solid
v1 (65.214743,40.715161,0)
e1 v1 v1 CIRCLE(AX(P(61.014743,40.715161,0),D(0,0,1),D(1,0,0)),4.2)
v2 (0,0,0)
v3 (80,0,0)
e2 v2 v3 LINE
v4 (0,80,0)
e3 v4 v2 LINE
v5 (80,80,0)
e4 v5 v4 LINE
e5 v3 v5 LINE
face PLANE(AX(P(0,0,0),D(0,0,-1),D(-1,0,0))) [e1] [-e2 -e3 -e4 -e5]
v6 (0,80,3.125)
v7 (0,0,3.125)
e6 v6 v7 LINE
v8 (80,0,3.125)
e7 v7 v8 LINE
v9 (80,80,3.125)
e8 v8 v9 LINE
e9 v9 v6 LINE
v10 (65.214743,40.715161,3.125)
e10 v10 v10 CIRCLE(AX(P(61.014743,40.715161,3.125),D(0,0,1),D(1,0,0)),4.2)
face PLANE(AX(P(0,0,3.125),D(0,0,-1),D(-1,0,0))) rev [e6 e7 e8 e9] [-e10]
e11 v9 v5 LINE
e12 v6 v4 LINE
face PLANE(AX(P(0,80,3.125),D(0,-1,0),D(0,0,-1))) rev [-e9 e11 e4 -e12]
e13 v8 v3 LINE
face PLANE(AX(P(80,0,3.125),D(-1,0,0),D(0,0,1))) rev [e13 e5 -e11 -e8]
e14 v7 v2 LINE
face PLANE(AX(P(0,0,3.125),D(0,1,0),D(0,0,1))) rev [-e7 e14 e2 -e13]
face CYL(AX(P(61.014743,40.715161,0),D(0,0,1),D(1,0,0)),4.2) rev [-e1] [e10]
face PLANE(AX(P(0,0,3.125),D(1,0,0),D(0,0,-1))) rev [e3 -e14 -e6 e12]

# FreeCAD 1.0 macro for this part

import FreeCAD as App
import Part
import Sketcher

doc = App.newDocument("Part")
body = doc.addObject("PartDesign::Body", "Body")

# Sketch on XY plane
sketch1 = body.newObject("Sketcher::SketchObject", "Sketch")
sketch1.AttachmentSupport = (doc.getObject("XY_Plane"), [""])
sketch1.MapMode = "FlatFace"
sketch1.addGeometry([
    Part.LineSegment(App.Vector(0, 80, 0), App.Vector(0, 0, 0)),
    Part.LineSegment(App.Vector(0, 0, 0), App.Vector(80, 0, 0)),
    Part.LineSegment(App.Vector(80, 0, 0), App.Vector(80, 80, 0)),
    Part.LineSegment(App.Vector(80, 80, 0), App.Vector(0, 80, 0)),
], False)
sketch1.addConstraint([
    Sketcher.Constraint("Coincident", 0, 2, 1, 1),
    Sketcher.Constraint("Coincident", 1, 2, 2, 1),
    Sketcher.Constraint("Coincident", 2, 2, 3, 1),
    Sketcher.Constraint("Coincident", 3, 2, 0, 1),
    Sketcher.Constraint("Vertical", 0),
    Sketcher.Constraint("Horizontal", 1),
    Sketcher.Constraint("Vertical", 2),
    Sketcher.Constraint("Horizontal", 3),
    Sketcher.Constraint("Coincident", 0, 2, -1, 1),
    Sketcher.Constraint("Equal", 3, 0),
    Sketcher.Constraint("DistanceX", 1, 1, 1, 2, 80.0),
])
pad1 = body.newObject("PartDesign::Pad", "Pad")
pad1.Profile = sketch1
pad1.Length = 3.125

# Sketch on XY plane
sketch2 = body.newObject("Sketcher::SketchObject", "Sketch001")
sketch2.AttachmentSupport = (doc.getObject("XY_Plane"), [""])
sketch2.MapMode = "FlatFace"
sketch2.AttachmentOffset = App.Placement(App.Vector(0, 0, 3.125), App.Rotation())
sketch2.addGeometry(Part.Circle(App.Vector(61, 40.7, 0), App.Vector(0, 0, 1), 4.2), False)
sketch2.addConstraint([
    Sketcher.Constraint("Diameter", 0, 8.4),
    Sketcher.Constraint("DistanceY", -1, 1, 0, 3, 40.715161),
    Sketcher.Constraint("DistanceX", -1, 1, 0, 3, 61.014743),
])
pocket1 = body.newObject("PartDesign::Pocket", "Pocket")
pocket1.Profile = sketch2
pocket1.Type = "ThroughAll"

doc.recompute()
